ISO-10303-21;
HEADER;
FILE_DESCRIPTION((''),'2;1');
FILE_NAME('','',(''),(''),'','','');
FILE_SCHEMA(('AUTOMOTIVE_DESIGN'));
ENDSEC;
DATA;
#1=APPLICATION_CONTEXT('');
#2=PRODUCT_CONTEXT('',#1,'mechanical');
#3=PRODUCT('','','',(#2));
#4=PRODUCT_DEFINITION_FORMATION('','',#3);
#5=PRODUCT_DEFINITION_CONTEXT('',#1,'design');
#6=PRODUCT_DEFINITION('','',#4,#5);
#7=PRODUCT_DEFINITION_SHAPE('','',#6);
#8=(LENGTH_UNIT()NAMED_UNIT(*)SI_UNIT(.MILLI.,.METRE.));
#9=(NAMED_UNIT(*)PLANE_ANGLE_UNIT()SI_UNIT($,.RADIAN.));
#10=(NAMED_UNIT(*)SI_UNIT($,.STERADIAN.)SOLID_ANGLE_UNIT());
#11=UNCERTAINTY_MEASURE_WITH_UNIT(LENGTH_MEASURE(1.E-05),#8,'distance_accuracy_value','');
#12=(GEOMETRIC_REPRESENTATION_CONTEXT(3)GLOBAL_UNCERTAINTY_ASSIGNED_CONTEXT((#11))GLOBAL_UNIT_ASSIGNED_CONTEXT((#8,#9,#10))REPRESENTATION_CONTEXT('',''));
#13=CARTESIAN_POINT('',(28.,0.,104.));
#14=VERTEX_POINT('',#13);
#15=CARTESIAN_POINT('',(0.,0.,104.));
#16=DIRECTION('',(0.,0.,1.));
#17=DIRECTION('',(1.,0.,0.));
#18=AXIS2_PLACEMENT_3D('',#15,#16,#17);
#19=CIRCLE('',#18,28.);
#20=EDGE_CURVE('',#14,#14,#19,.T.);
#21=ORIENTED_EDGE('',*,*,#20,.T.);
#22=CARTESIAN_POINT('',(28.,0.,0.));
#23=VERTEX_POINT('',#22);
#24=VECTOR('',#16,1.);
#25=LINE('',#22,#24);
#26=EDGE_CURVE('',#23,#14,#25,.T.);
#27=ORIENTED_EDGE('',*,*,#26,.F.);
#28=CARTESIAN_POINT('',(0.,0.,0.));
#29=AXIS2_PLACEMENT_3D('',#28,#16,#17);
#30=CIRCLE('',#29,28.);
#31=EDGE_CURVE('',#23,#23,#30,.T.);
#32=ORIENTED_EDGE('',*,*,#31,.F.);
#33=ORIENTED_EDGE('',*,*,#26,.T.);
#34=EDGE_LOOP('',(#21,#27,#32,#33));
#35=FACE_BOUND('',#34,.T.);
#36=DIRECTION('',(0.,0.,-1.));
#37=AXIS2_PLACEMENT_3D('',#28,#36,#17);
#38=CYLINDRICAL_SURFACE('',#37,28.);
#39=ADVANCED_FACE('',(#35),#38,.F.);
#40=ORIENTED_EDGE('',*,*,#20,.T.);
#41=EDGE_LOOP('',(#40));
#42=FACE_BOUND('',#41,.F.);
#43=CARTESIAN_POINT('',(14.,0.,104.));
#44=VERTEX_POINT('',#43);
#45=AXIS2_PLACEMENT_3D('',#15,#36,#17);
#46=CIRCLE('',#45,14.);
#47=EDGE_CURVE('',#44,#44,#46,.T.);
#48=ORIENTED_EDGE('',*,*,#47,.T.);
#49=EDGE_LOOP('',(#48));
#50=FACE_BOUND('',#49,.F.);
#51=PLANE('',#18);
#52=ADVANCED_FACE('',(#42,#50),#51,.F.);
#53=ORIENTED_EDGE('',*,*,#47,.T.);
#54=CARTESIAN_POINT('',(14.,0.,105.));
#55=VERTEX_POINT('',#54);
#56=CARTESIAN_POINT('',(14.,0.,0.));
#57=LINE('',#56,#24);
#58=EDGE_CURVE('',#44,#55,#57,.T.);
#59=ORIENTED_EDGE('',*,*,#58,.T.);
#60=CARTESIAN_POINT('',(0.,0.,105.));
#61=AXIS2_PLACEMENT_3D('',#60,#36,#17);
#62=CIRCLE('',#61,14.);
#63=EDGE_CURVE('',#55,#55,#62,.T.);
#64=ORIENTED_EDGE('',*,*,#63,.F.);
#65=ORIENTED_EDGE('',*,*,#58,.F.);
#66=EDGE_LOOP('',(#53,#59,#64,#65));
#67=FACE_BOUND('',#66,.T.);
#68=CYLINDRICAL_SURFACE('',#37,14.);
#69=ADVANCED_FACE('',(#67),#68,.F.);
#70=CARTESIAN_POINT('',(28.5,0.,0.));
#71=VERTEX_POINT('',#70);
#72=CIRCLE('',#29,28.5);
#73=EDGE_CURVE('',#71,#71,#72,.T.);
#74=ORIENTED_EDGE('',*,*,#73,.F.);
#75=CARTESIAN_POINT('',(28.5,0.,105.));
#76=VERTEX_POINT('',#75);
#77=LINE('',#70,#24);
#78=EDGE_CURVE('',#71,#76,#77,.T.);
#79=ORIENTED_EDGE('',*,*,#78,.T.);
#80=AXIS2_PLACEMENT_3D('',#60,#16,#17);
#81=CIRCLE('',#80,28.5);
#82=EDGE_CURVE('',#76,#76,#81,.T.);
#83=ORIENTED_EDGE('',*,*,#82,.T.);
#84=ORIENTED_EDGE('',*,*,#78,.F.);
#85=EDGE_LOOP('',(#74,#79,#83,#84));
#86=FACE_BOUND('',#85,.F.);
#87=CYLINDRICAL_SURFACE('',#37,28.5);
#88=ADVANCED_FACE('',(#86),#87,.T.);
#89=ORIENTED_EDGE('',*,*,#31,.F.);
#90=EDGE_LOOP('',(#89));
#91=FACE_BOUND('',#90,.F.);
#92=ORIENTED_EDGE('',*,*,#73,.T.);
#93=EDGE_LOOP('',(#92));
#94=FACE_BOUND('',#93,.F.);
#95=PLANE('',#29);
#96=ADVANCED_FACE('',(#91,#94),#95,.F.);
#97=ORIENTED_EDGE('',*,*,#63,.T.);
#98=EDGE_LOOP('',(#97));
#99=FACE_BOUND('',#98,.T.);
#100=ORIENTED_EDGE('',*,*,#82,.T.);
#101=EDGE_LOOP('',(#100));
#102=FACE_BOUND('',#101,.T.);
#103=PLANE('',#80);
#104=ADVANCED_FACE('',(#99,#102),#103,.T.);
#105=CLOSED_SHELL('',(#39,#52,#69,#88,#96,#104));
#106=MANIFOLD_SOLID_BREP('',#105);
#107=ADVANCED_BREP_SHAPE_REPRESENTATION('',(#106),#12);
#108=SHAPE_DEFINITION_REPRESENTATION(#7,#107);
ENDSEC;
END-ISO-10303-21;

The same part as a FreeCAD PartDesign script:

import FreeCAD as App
import Part
import Sketcher

doc = App.newDocument("Part")
body = doc.addObject("PartDesign::Body", "Body")

sketch1 = body.newObject("Sketcher::SketchObject", "Sketch")
sketch1.AttachmentSupport = (doc.getObject("XY_Plane"), [""])
sketch1.MapMode = "FlatFace"
sketch1.addGeometry(Part.Circle(App.Vector(0, 0, 0), App.Vector(0, 0, 1), 14), False)
sketch1.addConstraint([
    Sketcher.Constraint("Coincident", 0, 3, -1, 1),
    Sketcher.Constraint("Diameter", 0, 28.0),
])
pad1 = body.newObject("PartDesign::Pad", "Pad")
pad1.Profile = sketch1
pad1.Length = 110
body2 = doc.addObject("PartDesign::Body", "Body001")

sketch2 = body2.newObject("Sketcher::SketchObject", "Sketch001")
sketch2.AttachmentSupport = (doc.getObject("XY_Plane001"), [""])
sketch2.MapMode = "FlatFace"
sketch2.addGeometry(Part.Circle(App.Vector(0, 0, 0), App.Vector(0, 0, 1), 28), False)
sketch2.addConstraint([
    Sketcher.Constraint("Coincident", 0, 3, -1, 1),
    Sketcher.Constraint("Diameter", 0, 56.0),
])
pad2 = body2.newObject("PartDesign::Pad", "Pad001")
pad2.Profile = sketch2
pad2.Length = 104
body3 = doc.addObject("PartDesign::Body", "Body002")

sketch3 = body3.newObject("Sketcher::SketchObject", "Sketch002")
sketch3.AttachmentSupport = (doc.getObject("XY_Plane002"), [""])
sketch3.MapMode = "FlatFace"
sketch3.addGeometry(Part.Circle(App.Vector(0, 0, 0), App.Vector(0, 0, 1), 28.5), False)
sketch3.addConstraint([
    Sketcher.Constraint("Coincident", 0, 3, -1, 1),
    Sketcher.Constraint("Diameter", 0, 57.0),
])
pad3 = body3.newObject("PartDesign::Pad", "Pad002")
pad3.Profile = sketch3
pad3.Length = 105
doc.recompute()

boolean = body3.newObject("PartDesign::Boolean", "Boolean")
boolean.Type = "Cut"
boolean.addObjects([body2])
doc.recompute()

boolean2 = body3.newObject("PartDesign::Boolean", "Boolean001")
boolean2.Type = "Cut"
boolean2.addObjects([body])

doc.recompute()
